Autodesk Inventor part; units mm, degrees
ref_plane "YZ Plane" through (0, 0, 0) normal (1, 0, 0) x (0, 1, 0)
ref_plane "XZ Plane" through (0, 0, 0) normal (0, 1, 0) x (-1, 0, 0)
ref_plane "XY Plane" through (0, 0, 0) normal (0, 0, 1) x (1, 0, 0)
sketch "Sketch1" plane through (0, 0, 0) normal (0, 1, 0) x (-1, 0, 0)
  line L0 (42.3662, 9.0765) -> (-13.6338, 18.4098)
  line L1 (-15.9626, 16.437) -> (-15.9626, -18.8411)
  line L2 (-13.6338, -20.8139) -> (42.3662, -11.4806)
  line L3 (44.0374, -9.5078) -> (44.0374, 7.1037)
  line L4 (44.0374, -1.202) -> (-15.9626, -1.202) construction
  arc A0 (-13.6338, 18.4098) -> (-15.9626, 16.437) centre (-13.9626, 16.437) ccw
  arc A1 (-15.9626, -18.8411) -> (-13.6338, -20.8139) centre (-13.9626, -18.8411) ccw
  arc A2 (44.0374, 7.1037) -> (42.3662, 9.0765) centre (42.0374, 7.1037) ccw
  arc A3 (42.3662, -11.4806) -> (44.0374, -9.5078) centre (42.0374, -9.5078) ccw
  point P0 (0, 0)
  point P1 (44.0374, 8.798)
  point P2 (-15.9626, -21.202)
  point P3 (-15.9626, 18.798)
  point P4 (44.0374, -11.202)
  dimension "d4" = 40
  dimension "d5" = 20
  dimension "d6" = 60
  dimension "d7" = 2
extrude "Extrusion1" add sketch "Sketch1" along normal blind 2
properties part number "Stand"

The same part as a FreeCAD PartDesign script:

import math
import FreeCAD as App
import Part
import Sketcher

doc = App.newDocument("Part")
body = doc.addObject("PartDesign::Body", "Body")

# Sketch on XZ plane
sketch1 = body.newObject("Sketcher::SketchObject", "Sketch")
sketch1.AttachmentSupport = (doc.getObject("XZ_Plane"), [""])
sketch1.MapMode = "FlatFace"
sketch1.addGeometry([
    Part.ArcOfCircle(Part.Circle(App.Vector(-42, 7.1, 0), App.Vector(0, 0, 1), 2), math.radians(99), math.radians(180)),  # 0
    Part.LineSegment(App.Vector(-42.4, 9.1, 0), App.Vector(13.6, 18.4, 0)),  # 1
    Part.ArcOfCircle(Part.Circle(App.Vector(14, 16.4, 0), App.Vector(0, 0, 1), 2), math.radians(0), math.radians(99)),  # 2
    Part.LineSegment(App.Vector(16, 16.4, 0), App.Vector(16, -18.8, 0)),  # 3
    Part.ArcOfCircle(Part.Circle(App.Vector(14, -18.8, 0), App.Vector(0, 0, 1), 2), math.radians(-99), math.radians(0)),  # 4
    Part.LineSegment(App.Vector(13.6, -20.8, 0), App.Vector(-42.4, -11.5, 0)),  # 5
    Part.ArcOfCircle(Part.Circle(App.Vector(-42, -9.5, 0), App.Vector(0, 0, 1), 2), math.radians(180), math.radians(261)),  # 6
    Part.LineSegment(App.Vector(-44, -9.5, 0), App.Vector(-44, 7.1, 0)),  # 7
], False)
sketch1.addConstraint([
    Sketcher.Constraint("Tangent", 0, 1, 1, 1),
    Sketcher.Constraint("Tangent", 1, 2, 2, 2),
    Sketcher.Constraint("Tangent", 2, 1, 3, 1),
    Sketcher.Constraint("Tangent", 3, 2, 4, 2),
    Sketcher.Constraint("Tangent", 4, 1, 5, 1),
    Sketcher.Constraint("Tangent", 5, 2, 6, 2),
    Sketcher.Constraint("Tangent", 6, 1, 7, 1),
    Sketcher.Constraint("Tangent", 7, 2, 0, 2),
    Sketcher.Constraint("Vertical", 3),
    Sketcher.Constraint("Vertical", 7),
    Sketcher.Constraint("Equal", 0, 2),
    Sketcher.Constraint("Equal", 2, 4),
    Sketcher.Constraint("Equal", 4, 6),
    Sketcher.Constraint("Vertical", 1, 2, 4, 1),
    Sketcher.Constraint("Radius", 0, 2.0),
    Sketcher.Constraint("DistanceX", 0, 3, 2, 3, 56.0),
    Sketcher.Constraint("DistanceY", 3, 2, 3, 1, 35.278),
    Sketcher.Constraint("DistanceY", 7, 1, 7, 2, 16.6115),
    Sketcher.Constraint("DistanceY", -1, 1, 2, 3, 16.437),
    Sketcher.Constraint("DistanceX", 0, 3, -1, 1, 42.0374),
])
pad1 = body.newObject("PartDesign::Pad", "Pad")
pad1.Profile = sketch1
pad1.Length = 2
pad1.Reversed = True

doc.recompute()
